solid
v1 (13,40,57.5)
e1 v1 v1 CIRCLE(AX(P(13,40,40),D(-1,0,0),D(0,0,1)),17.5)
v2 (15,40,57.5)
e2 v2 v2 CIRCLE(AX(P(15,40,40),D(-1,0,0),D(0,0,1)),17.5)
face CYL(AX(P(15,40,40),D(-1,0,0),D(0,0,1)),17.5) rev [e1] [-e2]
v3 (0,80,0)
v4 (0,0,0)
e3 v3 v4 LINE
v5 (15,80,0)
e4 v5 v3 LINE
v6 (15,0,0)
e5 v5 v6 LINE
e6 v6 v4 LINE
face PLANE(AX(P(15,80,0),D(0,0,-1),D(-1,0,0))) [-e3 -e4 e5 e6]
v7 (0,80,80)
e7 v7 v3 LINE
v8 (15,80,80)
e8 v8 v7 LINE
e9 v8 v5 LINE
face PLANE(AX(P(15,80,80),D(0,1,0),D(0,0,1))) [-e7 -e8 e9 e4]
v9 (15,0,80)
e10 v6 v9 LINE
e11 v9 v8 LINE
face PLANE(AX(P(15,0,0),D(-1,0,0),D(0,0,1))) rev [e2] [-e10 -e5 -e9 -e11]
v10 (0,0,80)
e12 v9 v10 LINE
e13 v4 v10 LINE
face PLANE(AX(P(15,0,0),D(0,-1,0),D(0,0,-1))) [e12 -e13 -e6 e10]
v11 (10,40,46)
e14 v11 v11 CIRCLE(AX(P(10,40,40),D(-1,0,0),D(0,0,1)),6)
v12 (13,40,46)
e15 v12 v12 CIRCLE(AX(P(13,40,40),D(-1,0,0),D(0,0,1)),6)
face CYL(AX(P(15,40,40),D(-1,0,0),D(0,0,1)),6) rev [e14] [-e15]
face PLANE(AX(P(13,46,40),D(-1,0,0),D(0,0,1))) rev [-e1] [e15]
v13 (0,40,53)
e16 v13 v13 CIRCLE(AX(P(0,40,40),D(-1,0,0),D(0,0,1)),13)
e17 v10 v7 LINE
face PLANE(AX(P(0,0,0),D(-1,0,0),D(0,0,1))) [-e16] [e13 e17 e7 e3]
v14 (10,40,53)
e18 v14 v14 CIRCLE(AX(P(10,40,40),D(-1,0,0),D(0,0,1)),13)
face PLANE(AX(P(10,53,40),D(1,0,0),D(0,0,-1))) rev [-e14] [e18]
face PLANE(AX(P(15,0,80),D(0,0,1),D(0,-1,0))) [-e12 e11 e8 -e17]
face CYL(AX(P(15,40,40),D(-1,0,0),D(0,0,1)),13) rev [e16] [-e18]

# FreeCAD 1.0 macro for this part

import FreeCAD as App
import Part
import Sketcher
Q = App.Units.Quantity


def add_polygon(sketch, points):
    """Adds a closed chain of lines whose ends are joined by coincident constraints."""
    first, n = sketch.GeometryCount, len(points)
    for a, b in zip(points, points[1:] + points[:1]):
        sketch.addGeometry(Part.LineSegment(App.Vector(*a, 0), App.Vector(*b, 0)), False)
    for i in range(n):
        sketch.addConstraint(Sketcher.Constraint("Coincident", first + i, 2, first + (i + 1) % n, 1))

doc = App.newDocument("Part")
params = doc.addObject("Spreadsheet::Sheet", "Params")
for row, (alias, value) in enumerate([
    ("sketch1_width", "80 mm"),
    ("pad1_length", "15 mm"),
    ("sketch2_width", "15 mm"),
    ("sketch2_width2", "10 mm"),
    ("sketch2_width3", "3 mm"),
    ("sketch2_height", "13 mm"),
    ("sketch2_height2", "7 mm"),
    ("groove_angle", "360 deg"),
], start=1):
    params.set(f"A{row}", alias)
    params.set(f"B{row}", "=" + value)
    params.setAlias(f"B{row}", alias)

body = doc.addObject("PartDesign::Body", "Body")

sketch1 = body.newObject("Sketcher::SketchObject", "Sketch")
sketch1.AttachmentSupport = (doc.getObject("YZ_Plane"), [""])
sketch1.MapMode = "FlatFace"
add_polygon(sketch1, [(80, 80), (80, 0), (0, 0), (0, 80)])
sketch1.addConstraint([
    Sketcher.Constraint("Vertical", 0),
    Sketcher.Constraint("Horizontal", 1),
    Sketcher.Constraint("Vertical", 2),
    Sketcher.Constraint("Horizontal", 3),
    Sketcher.Constraint("Coincident", 1, 2, -1, 1),
    Sketcher.Constraint("Equal", 3, 0),
    Sketcher.Constraint("DistanceX", 1, 2, 1, 1, Q("80 mm")),
])
sketch1.setExpression("Constraints[10]", "Params.sketch1_width")
pad1 = body.newObject("PartDesign::Pad", "Pad")
pad1.Profile = sketch1
pad1.setExpression("Length", "Params.pad1_length")

sketch2 = body.newObject("Sketcher::SketchObject", "Sketch001")
sketch2.AttachmentSupport = (doc.getObject("XY_Plane"), [""])
sketch2.MapMode = "FlatFace"
sketch2.AttachmentOffset = App.Placement(App.Vector(0, 0, 40), App.Rotation())
add_polygon(sketch2, [(15, 57.5), (15, 40), (0, 40), (0, 53), (10, 53), (10, 46), (13, 46), (13, 57.5)])
sketch2.addGeometry(Part.LineSegment(App.Vector(15, 40, 0), App.Vector(0, 40, 0)), True)
sketch2.addConstraint([
    Sketcher.Constraint("Vertical", 0),
    Sketcher.Constraint("Horizontal", 1),
    Sketcher.Constraint("Vertical", 2),
    Sketcher.Constraint("Horizontal", 3),
    Sketcher.Constraint("Vertical", 4),
    Sketcher.Constraint("Horizontal", 5),
    Sketcher.Constraint("Vertical", 6),
    Sketcher.Constraint("Horizontal", 7),
    Sketcher.Constraint("Horizontal", 8),
    Sketcher.Constraint("Coincident", 8, 1, 0, 2),
    Sketcher.Constraint("PointOnObject", 1, 2, -2),
    Sketcher.Constraint("PointOnObject", 8, 2, -2),
    Sketcher.Constraint("DistanceX", 1, 2, 1, 1, Q("15 mm")),
    Sketcher.Constraint("DistanceX", 3, 1, 3, 2, Q("10 mm")),
    Sketcher.Constraint("DistanceX", 5, 1, 5, 2, Q("3 mm")),
    Sketcher.Constraint("DistanceY", 2, 1, 2, 2, Q("13 mm")),
    Sketcher.Constraint("DistanceY", 4, 2, 4, 1, Q("7 mm")),
    Sketcher.Constraint("DistanceY", 0, 2, 0, 1, Q("17.5 mm")),
    Sketcher.Constraint("DistanceY", -1, 1, 0, 2, Q("40 mm")),
])
sketch2.setExpression("Constraints[20]", "Params.sketch2_width")
sketch2.setExpression("Constraints[21]", "Params.sketch2_width2")
sketch2.setExpression("Constraints[22]", "Params.sketch2_width3")
sketch2.setExpression("Constraints[23]", "Params.sketch2_height")
sketch2.setExpression("Constraints[24]", "Params.sketch2_height2")
groove = body.newObject("PartDesign::Groove", "Groove")
groove.Profile = sketch2
groove.ReferenceAxis = (sketch2, ["Axis0"])
groove.setExpression("Angle", "Params.groove_angle")

doc.recompute()
